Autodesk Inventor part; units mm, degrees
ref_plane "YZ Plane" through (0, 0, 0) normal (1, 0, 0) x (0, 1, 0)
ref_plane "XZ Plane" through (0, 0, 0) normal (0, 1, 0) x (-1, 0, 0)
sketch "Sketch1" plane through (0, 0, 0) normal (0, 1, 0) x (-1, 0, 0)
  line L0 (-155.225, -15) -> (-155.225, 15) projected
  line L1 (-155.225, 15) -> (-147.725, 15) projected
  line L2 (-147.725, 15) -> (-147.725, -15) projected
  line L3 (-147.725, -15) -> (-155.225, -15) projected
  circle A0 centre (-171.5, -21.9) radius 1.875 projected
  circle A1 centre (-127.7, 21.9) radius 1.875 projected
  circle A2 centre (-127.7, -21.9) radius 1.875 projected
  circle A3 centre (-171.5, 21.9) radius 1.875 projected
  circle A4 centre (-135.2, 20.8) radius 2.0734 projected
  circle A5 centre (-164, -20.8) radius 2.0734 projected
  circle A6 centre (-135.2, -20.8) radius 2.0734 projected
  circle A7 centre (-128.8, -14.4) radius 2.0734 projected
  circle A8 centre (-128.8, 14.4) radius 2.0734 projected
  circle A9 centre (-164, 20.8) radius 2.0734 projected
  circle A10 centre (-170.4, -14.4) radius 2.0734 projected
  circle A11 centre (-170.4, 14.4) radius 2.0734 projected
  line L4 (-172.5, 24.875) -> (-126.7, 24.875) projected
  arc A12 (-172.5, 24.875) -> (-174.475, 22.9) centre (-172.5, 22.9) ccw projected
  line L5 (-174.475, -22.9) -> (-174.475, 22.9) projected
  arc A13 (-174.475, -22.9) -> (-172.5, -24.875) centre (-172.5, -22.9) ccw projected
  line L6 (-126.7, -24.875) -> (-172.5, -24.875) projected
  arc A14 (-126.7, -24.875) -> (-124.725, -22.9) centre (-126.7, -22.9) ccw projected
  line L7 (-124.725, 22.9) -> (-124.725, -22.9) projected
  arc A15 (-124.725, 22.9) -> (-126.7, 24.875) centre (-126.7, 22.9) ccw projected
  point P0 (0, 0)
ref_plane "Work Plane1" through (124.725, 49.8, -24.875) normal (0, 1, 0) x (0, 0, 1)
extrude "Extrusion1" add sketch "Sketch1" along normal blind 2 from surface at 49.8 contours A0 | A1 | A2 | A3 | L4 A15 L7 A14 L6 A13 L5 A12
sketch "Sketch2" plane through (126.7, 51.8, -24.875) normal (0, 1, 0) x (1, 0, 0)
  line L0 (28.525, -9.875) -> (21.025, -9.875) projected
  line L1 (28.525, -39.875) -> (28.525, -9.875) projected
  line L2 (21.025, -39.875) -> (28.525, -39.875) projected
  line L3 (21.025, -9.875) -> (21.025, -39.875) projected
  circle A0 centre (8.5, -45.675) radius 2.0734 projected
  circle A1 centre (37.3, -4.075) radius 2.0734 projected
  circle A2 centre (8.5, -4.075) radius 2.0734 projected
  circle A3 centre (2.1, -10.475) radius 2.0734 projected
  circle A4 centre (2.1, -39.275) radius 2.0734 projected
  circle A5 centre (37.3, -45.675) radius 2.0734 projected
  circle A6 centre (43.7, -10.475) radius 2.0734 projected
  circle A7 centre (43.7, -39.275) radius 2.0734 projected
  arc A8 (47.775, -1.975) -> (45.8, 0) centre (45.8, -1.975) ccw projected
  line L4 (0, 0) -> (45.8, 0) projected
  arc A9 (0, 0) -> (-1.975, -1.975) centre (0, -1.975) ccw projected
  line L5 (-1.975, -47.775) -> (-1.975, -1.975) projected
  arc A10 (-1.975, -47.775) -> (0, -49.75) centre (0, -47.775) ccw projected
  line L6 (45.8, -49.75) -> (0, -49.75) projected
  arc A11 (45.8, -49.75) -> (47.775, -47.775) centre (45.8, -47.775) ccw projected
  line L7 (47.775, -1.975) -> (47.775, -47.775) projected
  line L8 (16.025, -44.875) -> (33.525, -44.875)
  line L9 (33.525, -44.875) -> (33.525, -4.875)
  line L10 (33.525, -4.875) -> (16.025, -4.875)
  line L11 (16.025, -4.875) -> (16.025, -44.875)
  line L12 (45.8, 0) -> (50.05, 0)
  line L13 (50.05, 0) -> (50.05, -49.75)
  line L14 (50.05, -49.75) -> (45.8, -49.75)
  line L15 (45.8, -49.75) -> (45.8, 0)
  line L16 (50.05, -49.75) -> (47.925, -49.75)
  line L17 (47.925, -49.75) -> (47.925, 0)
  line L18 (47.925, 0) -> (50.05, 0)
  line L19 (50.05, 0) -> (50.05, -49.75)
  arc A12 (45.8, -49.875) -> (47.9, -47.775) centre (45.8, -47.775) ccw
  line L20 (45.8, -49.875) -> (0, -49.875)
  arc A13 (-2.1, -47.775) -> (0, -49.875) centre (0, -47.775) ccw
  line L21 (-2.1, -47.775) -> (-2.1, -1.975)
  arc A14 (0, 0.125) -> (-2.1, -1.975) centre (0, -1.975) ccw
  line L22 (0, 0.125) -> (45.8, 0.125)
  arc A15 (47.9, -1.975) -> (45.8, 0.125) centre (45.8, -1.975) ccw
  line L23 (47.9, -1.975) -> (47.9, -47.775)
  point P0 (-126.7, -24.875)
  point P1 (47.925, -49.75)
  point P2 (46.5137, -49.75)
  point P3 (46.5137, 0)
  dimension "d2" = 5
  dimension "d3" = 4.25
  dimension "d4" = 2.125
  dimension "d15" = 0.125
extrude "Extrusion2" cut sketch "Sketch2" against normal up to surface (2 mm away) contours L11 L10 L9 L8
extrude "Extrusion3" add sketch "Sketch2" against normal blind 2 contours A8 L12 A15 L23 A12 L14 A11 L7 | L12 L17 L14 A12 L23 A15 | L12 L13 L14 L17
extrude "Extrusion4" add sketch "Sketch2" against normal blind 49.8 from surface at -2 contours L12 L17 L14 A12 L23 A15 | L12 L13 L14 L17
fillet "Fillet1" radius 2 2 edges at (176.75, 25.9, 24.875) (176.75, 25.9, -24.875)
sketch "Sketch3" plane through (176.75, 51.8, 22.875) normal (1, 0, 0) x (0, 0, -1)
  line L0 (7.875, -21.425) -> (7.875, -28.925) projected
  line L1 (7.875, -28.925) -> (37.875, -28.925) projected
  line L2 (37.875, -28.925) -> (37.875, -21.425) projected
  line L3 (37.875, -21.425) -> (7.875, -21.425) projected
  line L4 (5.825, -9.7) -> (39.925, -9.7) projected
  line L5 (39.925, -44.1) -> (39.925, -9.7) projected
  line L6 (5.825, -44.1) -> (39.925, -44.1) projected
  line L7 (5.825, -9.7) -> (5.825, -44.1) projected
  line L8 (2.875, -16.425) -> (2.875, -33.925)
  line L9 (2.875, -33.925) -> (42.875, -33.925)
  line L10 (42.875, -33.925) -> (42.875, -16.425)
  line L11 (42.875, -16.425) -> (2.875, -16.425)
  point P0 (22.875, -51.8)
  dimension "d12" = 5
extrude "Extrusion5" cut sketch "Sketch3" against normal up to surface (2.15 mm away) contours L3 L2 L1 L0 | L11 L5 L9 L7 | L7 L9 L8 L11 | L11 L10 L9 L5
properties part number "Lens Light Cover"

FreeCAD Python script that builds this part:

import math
import FreeCAD as App
import Part
import Sketcher
Q = App.Units.Quantity


def edges_at(feature, points):
    """Names of the edges that pass closest to the given points."""
    edges = feature.Shape.Edges
    near = lambda p: min(range(len(edges)), key=lambda i: edges[i].distToShape(Part.Vertex(*p))[0])
    return sorted({f"Edge{near(p) + 1}" for p in points})

doc = App.newDocument("Part")
body = doc.addObject("PartDesign::Body", "Body")

sketch1 = body.newObject("Sketcher::SketchObject", "Sketch")
sketch1.AttachmentSupport = (doc.getObject("XZ_Plane"), [""])
sketch1.MapMode = "FlatFace"
sketch1.AttachmentOffset = App.Placement(App.Vector(0, 0, -49.8), App.Rotation())
sketch1.addGeometry([
    Part.LineSegment(App.Vector(126.7, 24.875, 0), App.Vector(172.5, 24.875, 0)),
    Part.ArcOfCircle(Part.Circle(App.Vector(172.5, 22.9, 0), App.Vector(0, 0, 1), 1.975), math.radians(0), math.radians(90)),
    Part.LineSegment(App.Vector(174.475, 22.9, 0), App.Vector(174.475, -22.9, 0)),
    Part.ArcOfCircle(Part.Circle(App.Vector(172.5, -22.9, 0), App.Vector(0, 0, 1), 1.975), math.radians(-90), math.radians(0)),
    Part.LineSegment(App.Vector(172.5, -24.875, 0), App.Vector(126.7, -24.875, 0)),
    Part.ArcOfCircle(Part.Circle(App.Vector(126.7, -22.9, 0), App.Vector(0, 0, 1), 1.975), math.radians(180), math.radians(270)),
    Part.LineSegment(App.Vector(124.725, -22.9, 0), App.Vector(124.725, 22.9, 0)),
    Part.ArcOfCircle(Part.Circle(App.Vector(126.7, 22.9, 0), App.Vector(0, 0, 1), 1.975), math.radians(90), math.radians(180)),
    Part.Circle(App.Vector(164, -20.8, 0), App.Vector(0, 0, 1), 2.0734),
    Part.Circle(App.Vector(170.4, -14.4, 0), App.Vector(0, 0, 1), 2.0734),
    Part.LineSegment(App.Vector(147.725, -15, 0), App.Vector(155.225, -15, 0)),
    Part.LineSegment(App.Vector(155.225, -15, 0), App.Vector(155.225, 15, 0)),
    Part.LineSegment(App.Vector(155.225, 15, 0), App.Vector(147.725, 15, 0)),
    Part.LineSegment(App.Vector(147.725, 15, 0), App.Vector(147.725, -15, 0)),
    Part.Circle(App.Vector(135.2, -20.8, 0), App.Vector(0, 0, 1), 2.0734),
    Part.Circle(App.Vector(128.8, -14.4, 0), App.Vector(0, 0, 1), 2.0734),
    Part.Circle(App.Vector(170.4, 14.4, 0), App.Vector(0, 0, 1), 2.0734),
    Part.Circle(App.Vector(164, 20.8, 0), App.Vector(0, 0, 1), 2.0734),
    Part.Circle(App.Vector(128.8, 14.4, 0), App.Vector(0, 0, 1), 2.0734),
    Part.Circle(App.Vector(135.2, 20.8, 0), App.Vector(0, 0, 1), 2.0734),
], False)
sketch1.addConstraint([
    Sketcher.Constraint("Tangent", 0, 2, 1, 2),
    Sketcher.Constraint("Tangent", 1, 1, 2, 1),
    Sketcher.Constraint("Tangent", 2, 2, 3, 2),
    Sketcher.Constraint("Tangent", 3, 1, 4, 1),
    Sketcher.Constraint("Tangent", 4, 2, 5, 2),
    Sketcher.Constraint("Tangent", 5, 1, 6, 1),
    Sketcher.Constraint("Tangent", 6, 2, 7, 2),
    Sketcher.Constraint("Tangent", 7, 1, 0, 1),
    Sketcher.Constraint("Coincident", 10, 2, 11, 1),
    Sketcher.Constraint("Coincident", 11, 2, 12, 1),
    Sketcher.Constraint("Coincident", 12, 2, 13, 1),
    Sketcher.Constraint("Coincident", 13, 2, 10, 1),
    Sketcher.Constraint("Horizontal", 0),
    Sketcher.Constraint("Vertical", 2),
    Sketcher.Constraint("Horizontal", 4),
    Sketcher.Constraint("Vertical", 6),
    Sketcher.Constraint("Horizontal", 10),
    Sketcher.Constraint("Vertical", 11),
    Sketcher.Constraint("Horizontal", 12),
    Sketcher.Constraint("Vertical", 13),
    Sketcher.Constraint("Equal", 1, 3),
    Sketcher.Constraint("Equal", 3, 5),
    Sketcher.Constraint("Equal", 5, 7),
    Sketcher.Constraint("Equal", 8, 9),
    Sketcher.Constraint("Equal", 9, 14),
    Sketcher.Constraint("Equal", 14, 15),
    Sketcher.Constraint("Equal", 15, 16),
    Sketcher.Constraint("Equal", 16, 17),
    Sketcher.Constraint("Equal", 17, 18),
    Sketcher.Constraint("Equal", 18, 19),
    Sketcher.Constraint("Symmetric", 9, 3, 16, 3, -1),
    Sketcher.Constraint("Symmetric", 8, 3, 17, 3, -1),
    Sketcher.Constraint("Symmetric", 15, 3, 18, 3, -1),
    Sketcher.Constraint("Symmetric", 14, 3, 19, 3, -1),
    Sketcher.Constraint("Horizontal", 8, 3, 14, 3),
    Sketcher.Constraint("Horizontal", 9, 3, 15, 3),
    Sketcher.Constraint("Equal", 4, 2),
    Sketcher.Constraint("DistanceY", 11, 1, 11, 2, Q("30 mm")),
    Sketcher.Constraint("DistanceX", 0, 1, 0, 2, Q("45.8 mm")),
    Sketcher.Constraint("DistanceX", 10, 1, 10, 2, Q("7.5 mm")),
    Sketcher.Constraint("DistanceX", -1, 1, 8, 3, Q("164 mm")),
    Sketcher.Constraint("DistanceY", 10, 2, -1, 1, Q("15 mm")),
    Sketcher.Constraint("Radius", 1, Q("1.975 mm")),
    Sketcher.Constraint("Diameter", 8, Q("4.1468 mm")),
    Sketcher.Constraint("DistanceX", -1, 1, 1, 3, Q("172.5 mm")),
    Sketcher.Constraint("DistanceY", -1, 1, 1, 3, Q("22.9 mm")),
    Sketcher.Constraint("DistanceY", 8, 3, -1, 1, Q("20.8 mm")),
    Sketcher.Constraint("DistanceX", -1, 1, 9, 3, Q("170.4 mm")),
    Sketcher.Constraint("DistanceY", 9, 3, -1, 1, Q("14.4 mm")),
    Sketcher.Constraint("DistanceX", -1, 1, 14, 3, Q("135.2 mm")),
    Sketcher.Constraint("DistanceX", -1, 1, 15, 3, Q("128.8 mm")),
    Sketcher.Constraint("DistanceX", 10, 2, 2, 2, Q("19.25 mm")),
])
pad1 = body.newObject("PartDesign::Pad", "Pad")
pad1.Profile = sketch1
pad1.Length = 2
pad1.Reversed = True

sketch2 = body.newObject("Sketcher::SketchObject", "Sketch001")
sketch2.AttachmentSupport = (doc.getObject("XZ_Plane"), [""])
sketch2.MapMode = "FlatFace"
sketch2.AttachmentOffset = App.Placement(App.Vector(0, 0, -51.8), App.Rotation())
sketch2.addGeometry([
    Part.LineSegment(App.Vector(142.725, -20, 0), App.Vector(142.725, 20, 0)),
    Part.LineSegment(App.Vector(142.725, 20, 0), App.Vector(160.225, 20, 0)),
    Part.LineSegment(App.Vector(160.225, 20, 0), App.Vector(160.225, -20, 0)),
    Part.LineSegment(App.Vector(160.225, -20, 0), App.Vector(142.725, -20, 0)),
    Part.LineSegment(App.Vector(147.725, -15, 0), App.Vector(155.225, -15, 0)),
    Part.LineSegment(App.Vector(155.225, -15, 0), App.Vector(155.225, 15, 0)),
    Part.LineSegment(App.Vector(155.225, 15, 0), App.Vector(147.725, 15, 0)),
    Part.LineSegment(App.Vector(147.725, 15, 0), App.Vector(147.725, -15, 0)),
], False)
sketch2.addConstraint([
    Sketcher.Constraint("Coincident", 0, 2, 1, 1),
    Sketcher.Constraint("Coincident", 1, 2, 2, 1),
    Sketcher.Constraint("Coincident", 2, 2, 3, 1),
    Sketcher.Constraint("Coincident", 3, 2, 0, 1),
    Sketcher.Constraint("Coincident", 4, 2, 5, 1),
    Sketcher.Constraint("Coincident", 5, 2, 6, 1),
    Sketcher.Constraint("Coincident", 6, 2, 7, 1),
    Sketcher.Constraint("Coincident", 7, 2, 4, 1),
    Sketcher.Constraint("Vertical", 0),
    Sketcher.Constraint("Horizontal", 1),
    Sketcher.Constraint("Vertical", 2),
    Sketcher.Constraint("Horizontal", 3),
    Sketcher.Constraint("Horizontal", 4),
    Sketcher.Constraint("Vertical", 5),
    Sketcher.Constraint("Horizontal", 6),
    Sketcher.Constraint("Vertical", 7),
    Sketcher.Constraint("DistanceX", 4, 2, 2, 2, Q("5 mm")),
    Sketcher.Constraint("DistanceY", 2, 2, 4, 2, Q("5 mm")),
    Sketcher.Constraint("DistanceY", 5, 2, 1, 2, Q("5 mm")),
    Sketcher.Constraint("DistanceX", 0, 2, 6, 2, Q("5 mm")),
    Sketcher.Constraint("DistanceY", 0, 1, 0, 2, Q("40 mm")),
    Sketcher.Constraint("DistanceX", 1, 1, 1, 2, Q("17.5 mm")),
    Sketcher.Constraint("DistanceY", -1, 1, 0, 2, Q("20 mm")),
    Sketcher.Constraint("DistanceX", -1, 1, 0, 2, Q("142.725 mm")),
])
pocket1 = body.newObject("PartDesign::Pocket", "Pocket")
pocket1.Profile = sketch2
pocket1.Length = 2
pocket1.Reversed = True

sketch3 = body.newObject("Sketcher::SketchObject", "Sketch002")
sketch3.AttachmentSupport = (doc.getObject("XZ_Plane"), [""])
sketch3.MapMode = "FlatFace"
sketch3.AttachmentOffset = App.Placement(App.Vector(0, 0, -51.8), App.Rotation())
sketch3.addGeometry([
    Part.ArcOfCircle(Part.Circle(App.Vector(172.5, -22.9, 0), App.Vector(0, 0, 1), 1.975), math.radians(-90), math.radians(0)),
    Part.LineSegment(App.Vector(174.475, -22.9, 0), App.Vector(174.475, 22.9, 0)),
    Part.ArcOfCircle(Part.Circle(App.Vector(172.5, 22.9, 0), App.Vector(0, 0, 1), 1.975), math.radians(0), math.radians(90)),
    Part.LineSegment(App.Vector(172.5, 24.875, 0), App.Vector(176.75, 24.875, 0)),
    Part.LineSegment(App.Vector(176.75, 24.875, 0), App.Vector(176.75, -24.875, 0)),
    Part.LineSegment(App.Vector(176.75, -24.875, 0), App.Vector(172.5, -24.875, 0)),
], False)
sketch3.addConstraint([
    Sketcher.Constraint("Tangent", 0, 2, 1, 1),
    Sketcher.Constraint("Tangent", 1, 2, 2, 1),
    Sketcher.Constraint("Tangent", 2, 2, 3, 1),
    Sketcher.Constraint("Coincident", 3, 2, 4, 1),
    Sketcher.Constraint("Coincident", 4, 2, 5, 1),
    Sketcher.Constraint("Tangent", 5, 2, 0, 1),
    Sketcher.Constraint("Vertical", 1),
    Sketcher.Constraint("Horizontal", 3),
    Sketcher.Constraint("Vertical", 4),
    Sketcher.Constraint("Horizontal", 5),
    Sketcher.Constraint("Equal", 0, 2),
    Sketcher.Constraint("DistanceX", 3, 1, 3, 2, Q("4.25 mm")),
    Sketcher.Constraint("DistanceY", 1, 1, 1, 2, Q("45.8 mm")),
    Sketcher.Constraint("Radius", 0, Q("1.975 mm")),
    Sketcher.Constraint("DistanceX", -1, 1, 0, 3, Q("172.5 mm")),
    Sketcher.Constraint("DistanceY", 0, 3, -1, 1, Q("22.9 mm")),
])
pad2 = body.newObject("PartDesign::Pad", "Pad001")
pad2.Profile = sketch3
pad2.Length = 2

sketch4 = body.newObject("Sketcher::SketchObject", "Sketch003")
sketch4.AttachmentSupport = (doc.getObject("XZ_Plane"), [""])
sketch4.MapMode = "FlatFace"
sketch4.AttachmentOffset = App.Placement(App.Vector(0, 0, -49.8), App.Rotation())
sketch4.addGeometry([
    Part.ArcOfCircle(Part.Circle(App.Vector(172.5, -22.9, 0), App.Vector(0, 0, 1), 2.1), math.radians(-70.131681), math.radians(0)),
    Part.LineSegment(App.Vector(174.6, -22.9, 0), App.Vector(174.6, 22.9, 0)),
    Part.ArcOfCircle(Part.Circle(App.Vector(172.5, 22.9, 0), App.Vector(0, 0, 1), 2.1), math.radians(0), math.radians(70.131681)),
    Part.LineSegment(App.Vector(173.213705, 24.875, 0), App.Vector(176.75, 24.875, 0)),
    Part.LineSegment(App.Vector(176.75, 24.875, 0), App.Vector(176.75, -24.875, 0)),
    Part.LineSegment(App.Vector(176.75, -24.875, 0), App.Vector(173.213705, -24.875, 0)),
], False)
sketch4.addConstraint([
    Sketcher.Constraint("Tangent", 0, 2, 1, 1),
    Sketcher.Constraint("Tangent", 1, 2, 2, 1),
    Sketcher.Constraint("Coincident", 2, 2, 3, 1),
    Sketcher.Constraint("Coincident", 3, 2, 4, 1),
    Sketcher.Constraint("Coincident", 4, 2, 5, 1),
    Sketcher.Constraint("Coincident", 5, 2, 0, 1),
    Sketcher.Constraint("Vertical", 1),
    Sketcher.Constraint("Horizontal", 3),
    Sketcher.Constraint("Vertical", 4),
    Sketcher.Constraint("Horizontal", 5),
    Sketcher.Constraint("Equal", 0, 2),
    Sketcher.Constraint("Symmetric", 2, 2, 5, 2, -1),
    Sketcher.Constraint("Radius", 0, Q("2.1 mm")),
    Sketcher.Constraint("DistanceX", 2, 3, 3, 2, Q("4.25 mm")),
    Sketcher.Constraint("DistanceY", 1, 1, 1, 2, Q("45.8 mm")),
    Sketcher.Constraint("DistanceY", 4, 2, 4, 1, Q("49.75 mm")),
    Sketcher.Constraint("DistanceX", -1, 1, 0, 3, Q("172.5 mm")),
])
pad3 = body.newObject("PartDesign::Pad", "Pad002")
pad3.Profile = sketch4
pad3.Length = 49.8
doc.recompute()

fillet = body.newObject("PartDesign::Fillet", "Fillet")
fillet.Base = (pad3, edges_at(pad3, [(176.75, 25.9, 24.875), (176.75, 25.9, -24.875)]))
fillet.Radius = 2

sketch5 = body.newObject("Sketcher::SketchObject", "Sketch004")
sketch5.AttachmentSupport = (doc.getObject("YZ_Plane"), [""])
sketch5.MapMode = "FlatFace"
sketch5.AttachmentOffset = App.Placement(App.Vector(0, 0, 176.75), App.Rotation())
sketch5.addGeometry([
    Part.LineSegment(App.Vector(35.375, 20, 0), App.Vector(17.875, 20, 0)),
    Part.LineSegment(App.Vector(17.875, 20, 0), App.Vector(17.875, -20, 0)),
    Part.LineSegment(App.Vector(17.875, -20, 0), App.Vector(35.375, -20, 0)),
    Part.LineSegment(App.Vector(35.375, -20, 0), App.Vector(35.375, 20, 0)),
], False)
sketch5.addConstraint([
    Sketcher.Constraint("Coincident", 0, 2, 1, 1),
    Sketcher.Constraint("Coincident", 1, 2, 2, 1),
    Sketcher.Constraint("Coincident", 2, 2, 3, 1),
    Sketcher.Constraint("Coincident", 3, 2, 0, 1),
    Sketcher.Constraint("Horizontal", 0),
    Sketcher.Constraint("Vertical", 1),
    Sketcher.Constraint("Horizontal", 2),
    Sketcher.Constraint("Vertical", 3),
    Sketcher.Constraint("DistanceY", 1, 2, 1, 1, Q("40 mm")),
    Sketcher.Constraint("DistanceX", 0, 2, 0, 1, Q("17.5 mm")),
    Sketcher.Constraint("DistanceY", -1, 1, 0, 2, Q("20 mm")),
    Sketcher.Constraint("DistanceX", -1, 1, 0, 2, Q("17.875 mm")),
])
pocket2 = body.newObject("PartDesign::Pocket", "Pocket001")
pocket2.Profile = sketch5
pocket2.Length = 2.15

doc.recompute()
